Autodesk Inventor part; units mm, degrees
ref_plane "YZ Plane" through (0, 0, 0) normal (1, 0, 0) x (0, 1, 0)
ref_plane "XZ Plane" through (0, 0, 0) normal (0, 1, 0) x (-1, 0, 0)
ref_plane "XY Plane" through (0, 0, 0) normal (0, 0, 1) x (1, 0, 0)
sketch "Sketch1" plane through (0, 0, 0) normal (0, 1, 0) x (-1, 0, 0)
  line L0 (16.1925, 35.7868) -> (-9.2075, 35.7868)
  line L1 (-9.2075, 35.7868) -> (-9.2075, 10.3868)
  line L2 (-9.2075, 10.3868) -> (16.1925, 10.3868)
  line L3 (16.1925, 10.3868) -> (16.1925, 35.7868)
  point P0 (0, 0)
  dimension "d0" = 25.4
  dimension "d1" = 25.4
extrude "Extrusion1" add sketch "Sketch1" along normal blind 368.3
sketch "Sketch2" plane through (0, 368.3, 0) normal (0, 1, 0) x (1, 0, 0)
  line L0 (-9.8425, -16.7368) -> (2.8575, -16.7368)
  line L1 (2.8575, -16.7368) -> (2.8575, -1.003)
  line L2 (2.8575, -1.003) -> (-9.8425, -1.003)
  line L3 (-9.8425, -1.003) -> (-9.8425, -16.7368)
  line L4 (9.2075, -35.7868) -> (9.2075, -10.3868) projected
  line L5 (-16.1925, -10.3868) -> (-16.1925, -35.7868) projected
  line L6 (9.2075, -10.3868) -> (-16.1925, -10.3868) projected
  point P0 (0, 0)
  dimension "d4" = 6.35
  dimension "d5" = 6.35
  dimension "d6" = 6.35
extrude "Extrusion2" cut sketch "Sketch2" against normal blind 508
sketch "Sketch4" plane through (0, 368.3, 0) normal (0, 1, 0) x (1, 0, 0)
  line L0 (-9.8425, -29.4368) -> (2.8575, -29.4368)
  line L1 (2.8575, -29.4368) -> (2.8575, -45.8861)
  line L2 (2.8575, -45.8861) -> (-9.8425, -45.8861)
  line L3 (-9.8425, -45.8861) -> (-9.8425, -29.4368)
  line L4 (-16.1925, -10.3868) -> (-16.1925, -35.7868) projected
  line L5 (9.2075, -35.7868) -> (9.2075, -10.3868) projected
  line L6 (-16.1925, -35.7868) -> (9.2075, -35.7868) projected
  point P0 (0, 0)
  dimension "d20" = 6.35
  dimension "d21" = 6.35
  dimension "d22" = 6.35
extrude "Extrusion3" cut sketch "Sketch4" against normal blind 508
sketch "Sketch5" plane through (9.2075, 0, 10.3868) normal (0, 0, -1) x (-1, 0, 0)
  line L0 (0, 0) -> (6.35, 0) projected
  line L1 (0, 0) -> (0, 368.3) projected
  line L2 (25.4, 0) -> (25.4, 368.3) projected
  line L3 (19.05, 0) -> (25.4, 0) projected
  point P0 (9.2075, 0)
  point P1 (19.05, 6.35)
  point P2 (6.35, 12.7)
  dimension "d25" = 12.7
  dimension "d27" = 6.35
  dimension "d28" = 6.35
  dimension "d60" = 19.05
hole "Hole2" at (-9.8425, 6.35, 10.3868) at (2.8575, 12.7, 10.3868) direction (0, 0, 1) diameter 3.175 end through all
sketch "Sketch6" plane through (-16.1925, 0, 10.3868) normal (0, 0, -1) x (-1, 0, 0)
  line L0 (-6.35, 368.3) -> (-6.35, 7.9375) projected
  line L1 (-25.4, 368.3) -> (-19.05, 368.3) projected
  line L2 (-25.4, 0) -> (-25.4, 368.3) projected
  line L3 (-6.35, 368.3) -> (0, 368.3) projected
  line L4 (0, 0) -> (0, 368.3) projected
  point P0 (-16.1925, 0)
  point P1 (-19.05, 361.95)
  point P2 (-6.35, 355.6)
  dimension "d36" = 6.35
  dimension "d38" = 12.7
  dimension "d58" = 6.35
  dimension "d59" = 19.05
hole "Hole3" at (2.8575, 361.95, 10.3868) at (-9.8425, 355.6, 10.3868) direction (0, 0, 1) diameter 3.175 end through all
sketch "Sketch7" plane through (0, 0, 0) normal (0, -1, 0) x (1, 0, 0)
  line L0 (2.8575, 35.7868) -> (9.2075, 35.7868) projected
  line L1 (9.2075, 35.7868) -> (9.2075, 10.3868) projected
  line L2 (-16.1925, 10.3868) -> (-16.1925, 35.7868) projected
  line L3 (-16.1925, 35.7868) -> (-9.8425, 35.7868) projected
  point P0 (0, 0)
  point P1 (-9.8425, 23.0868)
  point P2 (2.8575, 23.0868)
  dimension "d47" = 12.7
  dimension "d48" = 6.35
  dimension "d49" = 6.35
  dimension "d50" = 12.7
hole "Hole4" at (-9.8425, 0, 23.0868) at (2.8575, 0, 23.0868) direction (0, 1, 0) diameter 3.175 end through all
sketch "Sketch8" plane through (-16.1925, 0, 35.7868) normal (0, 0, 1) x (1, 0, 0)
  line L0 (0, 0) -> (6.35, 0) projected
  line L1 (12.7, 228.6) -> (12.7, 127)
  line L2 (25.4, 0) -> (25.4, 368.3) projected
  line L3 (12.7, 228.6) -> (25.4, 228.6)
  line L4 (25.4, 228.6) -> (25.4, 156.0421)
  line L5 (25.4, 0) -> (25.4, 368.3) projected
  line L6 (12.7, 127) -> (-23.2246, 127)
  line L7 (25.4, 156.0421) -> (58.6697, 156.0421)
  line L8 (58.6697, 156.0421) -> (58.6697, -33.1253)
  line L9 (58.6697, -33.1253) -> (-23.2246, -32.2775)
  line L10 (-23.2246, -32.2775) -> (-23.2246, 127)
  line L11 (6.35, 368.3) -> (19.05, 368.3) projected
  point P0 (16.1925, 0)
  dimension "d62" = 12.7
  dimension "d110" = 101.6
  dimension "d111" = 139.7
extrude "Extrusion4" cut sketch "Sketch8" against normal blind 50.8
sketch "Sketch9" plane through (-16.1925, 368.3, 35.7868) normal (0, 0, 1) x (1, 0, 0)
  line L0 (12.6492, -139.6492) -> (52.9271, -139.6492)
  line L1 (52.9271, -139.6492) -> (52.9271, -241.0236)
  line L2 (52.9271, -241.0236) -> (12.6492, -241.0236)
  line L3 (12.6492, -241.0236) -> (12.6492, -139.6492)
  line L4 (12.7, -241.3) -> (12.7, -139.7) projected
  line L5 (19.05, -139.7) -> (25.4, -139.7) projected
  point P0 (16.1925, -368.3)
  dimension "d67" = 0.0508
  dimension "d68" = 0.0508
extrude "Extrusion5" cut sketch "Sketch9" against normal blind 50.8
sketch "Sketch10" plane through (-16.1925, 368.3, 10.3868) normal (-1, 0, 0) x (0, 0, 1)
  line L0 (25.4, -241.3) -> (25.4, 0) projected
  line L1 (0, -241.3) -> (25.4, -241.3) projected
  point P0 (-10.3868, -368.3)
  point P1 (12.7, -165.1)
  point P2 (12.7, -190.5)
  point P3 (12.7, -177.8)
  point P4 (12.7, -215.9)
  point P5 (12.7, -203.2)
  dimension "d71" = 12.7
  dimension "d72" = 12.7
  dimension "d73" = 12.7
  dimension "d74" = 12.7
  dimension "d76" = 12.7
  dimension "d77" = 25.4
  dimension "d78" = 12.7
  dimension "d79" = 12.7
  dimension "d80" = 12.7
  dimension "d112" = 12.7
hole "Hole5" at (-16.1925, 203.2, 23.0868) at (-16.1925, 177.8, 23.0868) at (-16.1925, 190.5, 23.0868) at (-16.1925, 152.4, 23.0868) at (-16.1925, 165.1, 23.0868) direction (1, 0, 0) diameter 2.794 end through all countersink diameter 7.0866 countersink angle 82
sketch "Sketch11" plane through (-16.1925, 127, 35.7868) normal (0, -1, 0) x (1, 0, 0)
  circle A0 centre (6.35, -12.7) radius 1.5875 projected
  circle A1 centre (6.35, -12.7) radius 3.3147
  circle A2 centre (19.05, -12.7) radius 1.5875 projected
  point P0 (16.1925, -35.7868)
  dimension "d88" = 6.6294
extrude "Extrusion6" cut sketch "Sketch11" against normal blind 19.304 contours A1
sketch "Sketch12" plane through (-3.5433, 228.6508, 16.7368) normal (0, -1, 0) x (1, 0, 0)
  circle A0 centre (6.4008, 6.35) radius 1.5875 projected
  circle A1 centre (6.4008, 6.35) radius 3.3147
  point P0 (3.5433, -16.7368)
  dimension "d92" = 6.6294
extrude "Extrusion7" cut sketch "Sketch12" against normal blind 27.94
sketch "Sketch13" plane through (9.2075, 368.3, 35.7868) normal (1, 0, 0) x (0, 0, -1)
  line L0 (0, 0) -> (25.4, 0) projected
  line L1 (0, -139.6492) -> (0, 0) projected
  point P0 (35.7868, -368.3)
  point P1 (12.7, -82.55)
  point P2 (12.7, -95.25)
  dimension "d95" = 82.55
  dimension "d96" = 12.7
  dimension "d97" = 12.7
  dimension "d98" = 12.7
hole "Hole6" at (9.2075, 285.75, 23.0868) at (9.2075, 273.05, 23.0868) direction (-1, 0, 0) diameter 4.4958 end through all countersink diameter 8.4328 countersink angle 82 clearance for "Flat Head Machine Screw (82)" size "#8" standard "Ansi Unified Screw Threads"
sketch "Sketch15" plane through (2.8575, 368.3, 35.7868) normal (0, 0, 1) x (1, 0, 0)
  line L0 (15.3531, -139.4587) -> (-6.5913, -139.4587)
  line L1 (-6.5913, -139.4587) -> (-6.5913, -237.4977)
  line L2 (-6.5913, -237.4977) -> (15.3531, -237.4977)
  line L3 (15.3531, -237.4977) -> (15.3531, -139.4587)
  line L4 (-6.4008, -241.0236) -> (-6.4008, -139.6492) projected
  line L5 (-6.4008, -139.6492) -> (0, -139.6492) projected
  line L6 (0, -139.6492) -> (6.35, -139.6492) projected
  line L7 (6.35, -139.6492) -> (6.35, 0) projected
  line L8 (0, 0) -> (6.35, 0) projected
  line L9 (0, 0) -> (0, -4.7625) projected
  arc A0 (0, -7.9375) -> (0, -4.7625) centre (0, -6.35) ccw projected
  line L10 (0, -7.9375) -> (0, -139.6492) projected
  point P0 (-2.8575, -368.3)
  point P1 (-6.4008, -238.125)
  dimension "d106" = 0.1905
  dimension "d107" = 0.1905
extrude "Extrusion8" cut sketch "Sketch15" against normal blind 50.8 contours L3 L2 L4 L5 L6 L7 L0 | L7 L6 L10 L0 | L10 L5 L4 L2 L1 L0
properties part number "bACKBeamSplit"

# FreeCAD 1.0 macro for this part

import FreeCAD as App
import Part
import Sketcher
Q = App.Units.Quantity

doc = App.newDocument("Part")
params = doc.addObject("Spreadsheet::Sheet", "Params")
for row, (alias, value) in enumerate([
    ("sketch1_width", "1 in"),
    ("pad1_length", "14.5 in"),
    ("sketch2_width", "0.5 in"),
    ("pocket1_length", "20 in"),
    ("sketch3_width", "0.5 in"),
    ("pocket2_length", "20 in"),
    ("sketch4_diameter", "0.125 in"),
    ("hole_diameter", "0.125 in"),
    ("sketch5_diameter", "0.125 in"),
    ("hole2_diameter", "0.125 in"),
    ("sketch6_diameter", "0.125 in"),
    ("hole3_diameter", "0.125 in"),
    ("sketch7_height", "4 in"),
    ("sketch7_width", "0.5 in"),
    ("pocket3_length", "2 in"),
    ("pocket4_length", "2 in"),
    ("sketch9_diameter", "0.11 in"),
    ("hole4_diameter", "0.11 in"),
    ("hole4_csink_diameter", "0.279 in"),
    ("sketch10_diameter", "0.261 in"),
    ("sketch10_diameter2", "0.125 in"),
    ("pocket5_length", "0.76 in"),
    ("sketch11_diameter", "0.261 in"),
    ("sketch11_diameter2", "0.125 in"),
    ("pocket6_length", "1.1 in"),
    ("sketch12_diameter", "0.177 in"),
    ("hole5_diameter", "0.177 in"),
    ("hole5_csink_diameter", "0.332 in"),
    ("pocket7_length", "2 in"),
], start=1):
    params.set(f"A{row}", alias)
    params.set(f"B{row}", "=" + value)
    params.setAlias(f"B{row}", alias)

body = doc.addObject("PartDesign::Body", "Body")

# Sketch on XZ plane
sketch1 = doc.addObject("Sketcher::SketchObject", "Sketch")
body.addObject(sketch1)
sketch1.AttachmentSupport = (doc.XZ_Plane, [""])
sketch1.MapMode = "FlatFace"
sketch1.addGeometry([
    Part.LineSegment(App.Vector(-16.1925, 10.3868, 0), App.Vector(-16.1925, 35.7868, 0)),
    Part.LineSegment(App.Vector(-16.1925, 35.7868, 0), App.Vector(9.2075, 35.7868, 0)),
    Part.LineSegment(App.Vector(9.2075, 35.7868, 0), App.Vector(9.2075, 10.3868, 0)),
    Part.LineSegment(App.Vector(9.2075, 10.3868, 0), App.Vector(-16.1925, 10.3868, 0)),
], False)
sketch1.addConstraint([
    Sketcher.Constraint("Coincident", 0, 2, 1, 1),
    Sketcher.Constraint("Coincident", 1, 2, 2, 1),
    Sketcher.Constraint("Coincident", 2, 2, 3, 1),
    Sketcher.Constraint("Coincident", 3, 2, 0, 1),
    Sketcher.Constraint("Vertical", 0),
    Sketcher.Constraint("Horizontal", 1),
    Sketcher.Constraint("Vertical", 2),
    Sketcher.Constraint("Horizontal", 3),
    Sketcher.Constraint("Equal", 3, 0),
    Sketcher.Constraint("DistanceX", 1, 1, 1, 2, Q("1 in")),
    Sketcher.Constraint("DistanceX", 0, 2, -1, 1, Q("0.6375 in")),
    Sketcher.Constraint("DistanceY", -1, 1, 0, 2, 35.7868),
])
sketch1.setExpression("Constraints[9]", "Params.sketch1_width")
pad1 = doc.addObject("PartDesign::Pad", "Pad")
body.addObject(pad1)
pad1.Profile = sketch1
pad1.setExpression("Length", "Params.pad1_length")
pad1.Reversed = True

# Sketch on XZ plane
sketch2 = doc.addObject("Sketcher::SketchObject", "Sketch001")
body.addObject(sketch2)
sketch2.AttachmentSupport = (doc.XZ_Plane, [""])
sketch2.MapMode = "FlatFace"
sketch2.AttachmentOffset = App.Placement(App.Vector(0, 0, -14.5 * 25.4), App.Rotation())
sketch2.addGeometry([
    Part.LineSegment(App.Vector(-9.8425, 16.7368, 0), App.Vector(2.8575, 16.7368, 0)),
    Part.LineSegment(App.Vector(2.8575, 16.7368, 0), App.Vector(2.8575, 1.003, 0)),
    Part.LineSegment(App.Vector(2.8575, 1.003, 0), App.Vector(-9.8425, 1.003, 0)),
    Part.LineSegment(App.Vector(-9.8425, 1.003, 0), App.Vector(-9.8425, 16.7368, 0)),
], False)
sketch2.addConstraint([
    Sketcher.Constraint("Coincident", 0, 2, 1, 1),
    Sketcher.Constraint("Coincident", 1, 2, 2, 1),
    Sketcher.Constraint("Coincident", 2, 2, 3, 1),
    Sketcher.Constraint("Coincident", 3, 2, 0, 1),
    Sketcher.Constraint("Horizontal", 0),
    Sketcher.Constraint("Vertical", 1),
    Sketcher.Constraint("Horizontal", 2),
    Sketcher.Constraint("Vertical", 3),
    Sketcher.Constraint("DistanceX", 0, 1, 0, 2, Q("0.5 in")),
    Sketcher.Constraint("DistanceY", 1, 2, 1, 1, 15.7338),
    Sketcher.Constraint("DistanceX", -1, 1, 0, 2, Q("0.1125 in")),
    Sketcher.Constraint("DistanceY", -1, 1, 1, 2, Q("0.0395 in")),
])
sketch2.setExpression("Constraints[8]", "Params.sketch2_width")
pocket1 = doc.addObject("PartDesign::Pocket", "Pocket")
body.addObject(pocket1)
pocket1.Profile = sketch2
pocket1.setExpression("Length", "Params.pocket1_length")
pocket1.Reversed = True

# Sketch on XZ plane
sketch3 = doc.addObject("Sketcher::SketchObject", "Sketch002")
body.addObject(sketch3)
sketch3.AttachmentSupport = (doc.XZ_Plane, [""])
sketch3.MapMode = "FlatFace"
sketch3.AttachmentOffset = App.Placement(App.Vector(0, 0, -14.5 * 25.4), App.Rotation())
sketch3.addGeometry([
    Part.LineSegment(App.Vector(2.8575, 29.4368, 0), App.Vector(-9.8425, 29.4368, 0)),
    Part.LineSegment(App.Vector(-9.8425, 29.4368, 0), App.Vector(-9.8425, 45.8861, 0)),
    Part.LineSegment(App.Vector(-9.8425, 45.8861, 0), App.Vector(2.8575, 45.8861, 0)),
    Part.LineSegment(App.Vector(2.8575, 45.8861, 0), App.Vector(2.8575, 29.4368, 0)),
], False)
sketch3.addConstraint([
    Sketcher.Constraint("Coincident", 0, 2, 1, 1),
    Sketcher.Constraint("Coincident", 1, 2, 2, 1),
    Sketcher.Constraint("Coincident", 2, 2, 3, 1),
    Sketcher.Constraint("Coincident", 3, 2, 0, 1),
    Sketcher.Constraint("Horizontal", 0),
    Sketcher.Constraint("Vertical", 1),
    Sketcher.Constraint("Horizontal", 2),
    Sketcher.Constraint("Vertical", 3),
    Sketcher.Constraint("DistanceX", 0, 2, 0, 1, Q("0.5 in")),
    Sketcher.Constraint("DistanceY", 1, 1, 1, 2, Q("0.6476 in")),
    Sketcher.Constraint("DistanceX", 0, 2, -1, 1, Q("0.3875 in")),
    Sketcher.Constraint("DistanceY", -1, 1, 0, 2, 29.4368),
])
sketch3.setExpression("Constraints[8]", "Params.sketch3_width")
pocket2 = doc.addObject("PartDesign::Pocket", "Pocket001")
body.addObject(pocket2)
pocket2.Profile = sketch3
pocket2.setExpression("Length", "Params.pocket2_length")
pocket2.Reversed = True

# Sketch on XY plane
sketch4 = doc.addObject("Sketcher::SketchObject", "Sketch003")
body.addObject(sketch4)
sketch4.AttachmentSupport = (doc.XY_Plane, [""])
sketch4.MapMode = "FlatFace"
sketch4.AttachmentOffset = App.Placement(App.Vector(0, 0, 10.3868), App.Rotation())
sketch4.addGeometry([
    Part.Circle(App.Vector(-9.8425, 6.35, 0), App.Vector(0, 0, 1), 1.5875),
    Part.Circle(App.Vector(2.8575, 12.7, 0), App.Vector(0, 0, 1), 1.5875),
], False)
sketch4.addConstraint([
    Sketcher.Constraint("Equal", 0, 1),
    Sketcher.Constraint("Diameter", 0, Q("0.125 in")),
    Sketcher.Constraint("DistanceY", -1, 1, 1, 3, Q("0.5 in")),
    Sketcher.Constraint("DistanceX", 0, 3, 1, 3, Q("0.5 in")),
    Sketcher.Constraint("DistanceY", -1, 1, 0, 3, Q("0.25 in")),
    Sketcher.Constraint("DistanceX", 0, 3, -1, 1, Q("0.3875 in")),
])
sketch4.setExpression("Constraints[1]", "Params.sketch4_diameter")
doc.recompute()
hole = doc.addObject("PartDesign::Hole", "Hole")
body.addObject(hole)
hole.Profile = sketch4
hole.ThreadType = "None"
hole.setExpression("Diameter", "Params.hole_diameter")
hole.DepthType = "ThroughAll"
hole.Reversed = True

# Sketch on XY plane
sketch5 = doc.addObject("Sketcher::SketchObject", "Sketch004")
body.addObject(sketch5)
sketch5.AttachmentSupport = (doc.XY_Plane, [""])
sketch5.MapMode = "FlatFace"
sketch5.AttachmentOffset = App.Placement(App.Vector(0, 0, 10.3868), App.Rotation())
sketch5.addGeometry([
    Part.Circle(App.Vector(2.8575, 361.95, 0), App.Vector(0, 0, 1), 1.5875),
    Part.Circle(App.Vector(-9.8425, 355.6, 0), App.Vector(0, 0, 1), 1.5875),
], False)
sketch5.addConstraint([
    Sketcher.Constraint("Equal", 0, 1),
    Sketcher.Constraint("Diameter", 0, Q("0.125 in")),
    Sketcher.Constraint("DistanceY", -1, 1, 1, 3, Q("14 in")),
    Sketcher.Constraint("DistanceX", 1, 3, 0, 3, Q("0.5 in")),
    Sketcher.Constraint("DistanceY", -1, 1, 0, 3, Q("14.25 in")),
    Sketcher.Constraint("DistanceX", -1, 1, 0, 3, Q("0.1125 in")),
])
sketch5.setExpression("Constraints[1]", "Params.sketch5_diameter")
doc.recompute()
hole2 = doc.addObject("PartDesign::Hole", "Hole001")
body.addObject(hole2)
hole2.Profile = sketch5
hole2.ThreadType = "None"
hole2.setExpression("Diameter", "Params.hole2_diameter")
hole2.DepthType = "ThroughAll"
hole2.Reversed = True

# Sketch on XZ plane
sketch6 = doc.addObject("Sketcher::SketchObject", "Sketch005")
body.addObject(sketch6)
sketch6.AttachmentSupport = (doc.XZ_Plane, [""])
sketch6.MapMode = "FlatFace"
sketch6.addGeometry([
    Part.Circle(App.Vector(-9.8425, 23.0868, 0), App.Vector(0, 0, 1), 1.5875),
    Part.Circle(App.Vector(2.8575, 23.0868, 0), App.Vector(0, 0, 1), 1.5875),
], False)
sketch6.addConstraint([
    Sketcher.Constraint("Equal", 0, 1),
    Sketcher.Constraint("Horizontal", 0, 3, 1, 3),
    Sketcher.Constraint("Diameter", 0, Q("0.125 in")),
    Sketcher.Constraint("DistanceX", 0, 3, 1, 3, Q("0.5 in")),
    Sketcher.Constraint("DistanceX", 0, 3, -1, 1, Q("0.3875 in")),
    Sketcher.Constraint("DistanceY", -1, 1, 0, 3, 23.0868),
])
sketch6.setExpression("Constraints[2]", "Params.sketch6_diameter")
doc.recompute()
hole3 = doc.addObject("PartDesign::Hole", "Hole002")
body.addObject(hole3)
hole3.Profile = sketch6
hole3.ThreadType = "None"
hole3.setExpression("Diameter", "Params.hole3_diameter")
hole3.DepthType = "ThroughAll"

# Sketch on XY plane
sketch7 = doc.addObject("Sketcher::SketchObject", "Sketch006")
body.addObject(sketch7)
sketch7.AttachmentSupport = (doc.XY_Plane, [""])
sketch7.MapMode = "FlatFace"
sketch7.AttachmentOffset = App.Placement(App.Vector(0, 0, 35.7868), App.Rotation())
sketch7.addGeometry([
    Part.LineSegment(App.Vector(9.2075, 228.6, 0), App.Vector(-3.4925, 228.6, 0)),  # 0
    Part.LineSegment(App.Vector(-3.4925, 228.6, 0), App.Vector(-3.4925, 127, 0)),  # 1
    Part.LineSegment(App.Vector(-3.4925, 127, 0), App.Vector(-39.4171, 127, 0)),  # 2
    Part.LineSegment(App.Vector(-39.4171, 127, 0), App.Vector(-39.4171, -32.2775, 0)),  # 3
    Part.LineSegment(App.Vector(-39.4171, -32.2775, 0), App.Vector(42.4772, -33.1253, 0)),  # 4
    Part.LineSegment(App.Vector(42.4772, -33.1253, 0), App.Vector(42.4772, 156.0421, 0)),  # 5
    Part.LineSegment(App.Vector(42.4772, 156.0421, 0), App.Vector(9.2075, 156.0421, 0)),  # 6
    Part.LineSegment(App.Vector(9.2075, 156.0421, 0), App.Vector(9.2075, 228.6, 0)),  # 7
], False)
sketch7.addConstraint([
    Sketcher.Constraint("Coincident", 0, 2, 1, 1),
    Sketcher.Constraint("Coincident", 1, 2, 2, 1),
    Sketcher.Constraint("Coincident", 2, 2, 3, 1),
    Sketcher.Constraint("Coincident", 3, 2, 4, 1),
    Sketcher.Constraint("Coincident", 4, 2, 5, 1),
    Sketcher.Constraint("Coincident", 5, 2, 6, 1),
    Sketcher.Constraint("Coincident", 6, 2, 7, 1),
    Sketcher.Constraint("Coincident", 7, 2, 0, 1),
    Sketcher.Constraint("Horizontal", 0),
    Sketcher.Constraint("Vertical", 1),
    Sketcher.Constraint("Horizontal", 2),
    Sketcher.Constraint("Vertical", 3),
    Sketcher.Constraint("Vertical", 5),
    Sketcher.Constraint("Horizontal", 6),
    Sketcher.Constraint("Vertical", 7),
    Sketcher.Constraint("DistanceY", 1, 2, 1, 1, Q("4 in")),
    Sketcher.Constraint("DistanceX", 0, 2, 0, 1, Q("0.5 in")),
    Sketcher.Constraint("DistanceY", -1, 1, 0, 2, Q("9 in")),
    Sketcher.Constraint("DistanceY", 7, 1, 7, 2, Q("2.8566 in")),
    Sketcher.Constraint("DistanceX", 2, 2, 2, 1, 35.9246),
    Sketcher.Constraint("DistanceX", 6, 2, 6, 1, 33.2697),
    Sketcher.Constraint("DistanceY", 3, 2, 3, 1, 159.2775),
    Sketcher.Constraint("DistanceY", 5, 1, 5, 2, 189.1674),
    Sketcher.Constraint("DistanceX", 0, 2, -1, 1, Q("0.1375 in")),
])
sketch7.setExpression("Constraints[15]", "Params.sketch7_height")
sketch7.setExpression("Constraints[16]", "Params.sketch7_width")
pocket3 = doc.addObject("PartDesign::Pocket", "Pocket002")
body.addObject(pocket3)
pocket3.Profile = sketch7
pocket3.setExpression("Length", "Params.pocket3_length")

# Sketch on XY plane
sketch8 = doc.addObject("Sketcher::SketchObject", "Sketch007")
body.addObject(sketch8)
sketch8.AttachmentSupport = (doc.XY_Plane, [""])
sketch8.MapMode = "FlatFace"
sketch8.AttachmentOffset = App.Placement(App.Vector(0, 0, 35.7868), App.Rotation())
sketch8.addGeometry([
    Part.LineSegment(App.Vector(36.7346, 228.6508, 0), App.Vector(-3.5433, 228.6508, 0)),
    Part.LineSegment(App.Vector(-3.5433, 228.6508, 0), App.Vector(-3.5433, 127.2764, 0)),
    Part.LineSegment(App.Vector(-3.5433, 127.2764, 0), App.Vector(36.7346, 127.2764, 0)),
    Part.LineSegment(App.Vector(36.7346, 127.2764, 0), App.Vector(36.7346, 228.6508, 0)),
], False)
sketch8.addConstraint([
    Sketcher.Constraint("Coincident", 0, 2, 1, 1),
    Sketcher.Constraint("Coincident", 1, 2, 2, 1),
    Sketcher.Constraint("Coincident", 2, 2, 3, 1),
    Sketcher.Constraint("Coincident", 3, 2, 0, 1),
    Sketcher.Constraint("Horizontal", 0),
    Sketcher.Constraint("Vertical", 1),
    Sketcher.Constraint("Horizontal", 2),
    Sketcher.Constraint("Vertical", 3),
    Sketcher.Constraint("DistanceY", -1, 1, 0, 2, Q("9.002 in")),
    Sketcher.Constraint("DistanceX", 0, 2, 0, 1, 40.278),
    Sketcher.Constraint("DistanceY", 1, 2, 1, 1, 101.3744),
    Sketcher.Constraint("DistanceX", 0, 2, -1, 1, Q("0.1395 in")),
])
pocket4 = doc.addObject("PartDesign::Pocket", "Pocket003")
body.addObject(pocket4)
pocket4.Profile = sketch8
pocket4.setExpression("Length", "Params.pocket4_length")

# Sketch on YZ plane
sketch9 = doc.addObject("Sketcher::SketchObject", "Sketch008")
body.addObject(sketch9)
sketch9.AttachmentSupport = (doc.YZ_Plane, [""])
sketch9.MapMode = "FlatFace"
sketch9.AttachmentOffset = App.Placement(App.Vector(0, 0, -0.6375 * 25.4), App.Rotation())
sketch9.addGeometry([
    Part.Circle(App.Vector(203.2, 23.0868, 0), App.Vector(0, 0, 1), 1.397),  # 0
    Part.Circle(App.Vector(177.8, 23.0868, 0), App.Vector(0, 0, 1), 1.397),  # 1
    Part.Circle(App.Vector(190.5, 23.0868, 0), App.Vector(0, 0, 1), 1.397),  # 2
    Part.Circle(App.Vector(152.4, 23.0868, 0), App.Vector(0, 0, 1), 1.397),  # 3
    Part.Circle(App.Vector(165.1, 23.0868, 0), App.Vector(0, 0, 1), 1.397),  # 4
], False)
sketch9.addConstraint([
    Sketcher.Constraint("Equal", 0, 1),
    Sketcher.Constraint("Equal", 1, 2),
    Sketcher.Constraint("Equal", 2, 3),
    Sketcher.Constraint("Equal", 3, 4),
    Sketcher.Constraint("Horizontal", 0, 3, 1, 3),
    Sketcher.Constraint("Horizontal", 1, 3, 2, 3),
    Sketcher.Constraint("Horizontal", 2, 3, 3, 3),
    Sketcher.Constraint("Horizontal", 3, 3, 4, 3),
    Sketcher.Constraint("Diameter", 0, Q("0.11 in")),
    Sketcher.Constraint("DistanceX", -1, 1, 0, 3, Q("8 in")),
    Sketcher.Constraint("DistanceX", -1, 1, 1, 3, Q("7 in")),
    Sketcher.Constraint("DistanceX", -1, 1, 3, 3, Q("6 in")),
    Sketcher.Constraint("DistanceX", 4, 3, 2, 3, Q("1 in")),
    Sketcher.Constraint("DistanceX", -1, 1, 2, 3, Q("7.5 in")),
    Sketcher.Constraint("DistanceY", -1, 1, 0, 3, 23.0868),
])
sketch9.setExpression("Constraints[8]", "Params.sketch9_diameter")
doc.recompute()
hole4 = doc.addObject("PartDesign::Hole", "Hole003")
body.addObject(hole4)
hole4.Profile = sketch9
hole4.ThreadType = "None"
hole4.setExpression("Diameter", "Params.hole4_diameter")
hole4.DepthType = "ThroughAll"
hole4.HoleCutType = "Countersink"
hole4.setExpression("HoleCutDiameter", "Params.hole4_csink_diameter")
hole4.HoleCutCountersinkAngle = 82
hole4.Reversed = True

# Sketch on XZ plane
sketch10 = doc.addObject("Sketcher::SketchObject", "Sketch009")
body.addObject(sketch10)
sketch10.AttachmentSupport = (doc.XZ_Plane, [""])
sketch10.MapMode = "FlatFace"
sketch10.AttachmentOffset = App.Placement(App.Vector(0, 0, -5 * 25.4), App.Rotation())
sketch10.addGeometry([
    Part.Circle(App.Vector(-9.8425, 23.0868, 0), App.Vector(0, 0, 1), 3.3147),
    Part.Circle(App.Vector(-9.8425, 23.0868, 0), App.Vector(0, 0, 1), 1.5875),
], False)
sketch10.addConstraint([
    Sketcher.Constraint("Coincident", 1, 3, 0, 3),
    Sketcher.Constraint("Diameter", 0, Q("0.261 in")),
    Sketcher.Constraint("Diameter", 1, Q("0.125 in")),
    Sketcher.Constraint("DistanceX", 0, 3, -1, 1, Q("0.3875 in")),
    Sketcher.Constraint("DistanceY", -1, 1, 0, 3, 23.0868),
])
sketch10.setExpression("Constraints[1]", "Params.sketch10_diameter")
sketch10.setExpression("Constraints[2]", "Params.sketch10_diameter2")
pocket5 = doc.addObject("PartDesign::Pocket", "Pocket004")
body.addObject(pocket5)
pocket5.Profile = sketch10
pocket5.setExpression("Length", "Params.pocket5_length")

# Sketch on XZ plane
sketch11 = doc.addObject("Sketcher::SketchObject", "Sketch010")
body.addObject(sketch11)
sketch11.AttachmentSupport = (doc.XZ_Plane, [""])
sketch11.MapMode = "FlatFace"
sketch11.AttachmentOffset = App.Placement(App.Vector(0, 0, -9.002 * 25.4), App.Rotation())
sketch11.addGeometry([
    Part.Circle(App.Vector(2.8575, 23.0868, 0), App.Vector(0, 0, 1), 3.3147),
    Part.Circle(App.Vector(2.8575, 23.0868, 0), App.Vector(0, 0, 1), 1.5875),
], False)
sketch11.addConstraint([
    Sketcher.Constraint("Coincident", 1, 3, 0, 3),
    Sketcher.Constraint("Diameter", 0, Q("0.261 in")),
    Sketcher.Constraint("Diameter", 1, Q("0.125 in")),
    Sketcher.Constraint("DistanceX", -1, 1, 0, 3, Q("0.1125 in")),
    Sketcher.Constraint("DistanceY", -1, 1, 0, 3, 23.0868),
])
sketch11.setExpression("Constraints[1]", "Params.sketch11_diameter")
sketch11.setExpression("Constraints[2]", "Params.sketch11_diameter2")
pocket6 = doc.addObject("PartDesign::Pocket", "Pocket005")
body.addObject(pocket6)
pocket6.Profile = sketch11
pocket6.setExpression("Length", "Params.pocket6_length")

# Sketch on YZ plane
sketch12 = doc.addObject("Sketcher::SketchObject", "Sketch011")
body.addObject(sketch12)
sketch12.AttachmentSupport = (doc.YZ_Plane, [""])
sketch12.MapMode = "FlatFace"
sketch12.AttachmentOffset = App.Placement(App.Vector(0, 0, 0.3625 * 25.4), App.Rotation())
sketch12.addGeometry([
    Part.Circle(App.Vector(285.75, 23.0868, 0), App.Vector(0, 0, 1), 2.2479),
    Part.Circle(App.Vector(273.05, 23.0868, 0), App.Vector(0, 0, 1), 2.2479),
], False)
sketch12.addConstraint([
    Sketcher.Constraint("Equal", 0, 1),
    Sketcher.Constraint("Horizontal", 0, 3, 1, 3),
    Sketcher.Constraint("Diameter", 0, Q("0.177 in")),
    Sketcher.Constraint("DistanceX", 1, 3, 0, 3, Q("0.5 in")),
    Sketcher.Constraint("DistanceX", -1, 1, 0, 3, Q("11.25 in")),
    Sketcher.Constraint("DistanceY", -1, 1, 0, 3, 23.0868),
])
sketch12.setExpression("Constraints[2]", "Params.sketch12_diameter")
doc.recompute()
hole5 = doc.addObject("PartDesign::Hole", "Hole004")
body.addObject(hole5)
hole5.Profile = sketch12
hole5.ThreadType = "None"
hole5.setExpression("Diameter", "Params.hole5_diameter")
hole5.DepthType = "ThroughAll"
hole5.HoleCutType = "Countersink"
hole5.setExpression("HoleCutDiameter", "Params.hole5_csink_diameter")
hole5.HoleCutCountersinkAngle = 82

# Sketch on XY plane
sketch13 = doc.addObject("Sketcher::SketchObject", "Sketch012")
body.addObject(sketch13)
sketch13.AttachmentSupport = (doc.XY_Plane, [""])
sketch13.MapMode = "FlatFace"
sketch13.AttachmentOffset = App.Placement(App.Vector(0, 0, 35.7868), App.Rotation())
sketch13.addGeometry([
    Part.LineSegment(App.Vector(18.2106, 130.8023, 0), App.Vector(18.2106, 228.8413, 0)),
    Part.LineSegment(App.Vector(18.2106, 228.8413, 0), App.Vector(-3.7338, 228.8413, 0)),
    Part.LineSegment(App.Vector(-3.7338, 228.8413, 0), App.Vector(-3.7338, 130.8023, 0)),
    Part.LineSegment(App.Vector(-3.7338, 130.8023, 0), App.Vector(18.2106, 130.8023, 0)),
], False)
sketch13.addConstraint([
    Sketcher.Constraint("Coincident", 0, 2, 1, 1),
    Sketcher.Constraint("Coincident", 1, 2, 2, 1),
    Sketcher.Constraint("Coincident", 2, 2, 3, 1),
    Sketcher.Constraint("Coincident", 3, 2, 0, 1),
    Sketcher.Constraint("Vertical", 0),
    Sketcher.Constraint("Horizontal", 1),
    Sketcher.Constraint("Vertical", 2),
    Sketcher.Constraint("Horizontal", 3),
    Sketcher.Constraint("DistanceY", 0, 1, 0, 2, Q("3.8598 in")),
    Sketcher.Constraint("DistanceX", 1, 2, -1, 1, Q("0.147 in")),
    Sketcher.Constraint("DistanceX", 1, 2, 1, 1, 21.9444),
    Sketcher.Constraint("DistanceY", -1, 1, 0, 2, Q("9.0095 in")),
])
pocket7 = doc.addObject("PartDesign::Pocket", "Pocket006")
body.addObject(pocket7)
pocket7.Profile = sketch13
pocket7.setExpression("Length", "Params.pocket7_length")

doc.recompute()
